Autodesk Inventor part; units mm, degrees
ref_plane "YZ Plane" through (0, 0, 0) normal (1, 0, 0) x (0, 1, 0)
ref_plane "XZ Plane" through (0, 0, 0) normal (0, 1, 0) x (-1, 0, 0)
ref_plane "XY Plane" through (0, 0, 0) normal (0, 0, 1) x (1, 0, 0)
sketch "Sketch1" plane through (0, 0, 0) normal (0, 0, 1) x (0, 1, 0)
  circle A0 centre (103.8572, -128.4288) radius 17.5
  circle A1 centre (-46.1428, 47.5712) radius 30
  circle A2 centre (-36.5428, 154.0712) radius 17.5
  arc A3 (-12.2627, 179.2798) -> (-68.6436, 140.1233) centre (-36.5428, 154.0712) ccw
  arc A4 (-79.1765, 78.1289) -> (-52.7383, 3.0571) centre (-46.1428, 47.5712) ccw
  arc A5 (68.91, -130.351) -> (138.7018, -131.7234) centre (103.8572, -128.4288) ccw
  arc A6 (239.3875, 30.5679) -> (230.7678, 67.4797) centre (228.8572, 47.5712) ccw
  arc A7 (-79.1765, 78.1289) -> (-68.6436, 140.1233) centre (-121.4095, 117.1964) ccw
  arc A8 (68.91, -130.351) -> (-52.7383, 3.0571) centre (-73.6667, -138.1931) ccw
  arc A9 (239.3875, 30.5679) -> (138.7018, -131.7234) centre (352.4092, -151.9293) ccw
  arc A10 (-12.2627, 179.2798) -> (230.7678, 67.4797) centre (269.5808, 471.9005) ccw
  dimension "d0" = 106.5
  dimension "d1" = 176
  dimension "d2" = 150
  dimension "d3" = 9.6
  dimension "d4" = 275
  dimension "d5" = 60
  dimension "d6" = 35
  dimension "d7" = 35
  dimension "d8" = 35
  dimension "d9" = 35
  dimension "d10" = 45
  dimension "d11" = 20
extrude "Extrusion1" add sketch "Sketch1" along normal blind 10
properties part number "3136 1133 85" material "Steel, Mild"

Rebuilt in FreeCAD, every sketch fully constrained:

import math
import FreeCAD as App
import Part
import Sketcher
Q = App.Units.Quantity

doc = App.newDocument("Part")
body = doc.addObject("PartDesign::Body", "Body")

# Sketch on XY plane
sketch1 = body.newObject("Sketcher::SketchObject", "Sketch")
sketch1.AttachmentSupport = (doc.getObject("XY_Plane"), [""])
sketch1.MapMode = "FlatFace"
sketch1.addGeometry(Part.ArcOfCircle(Part.Circle(App.Vector(-471.9005, 269.5808, 0), App.Vector(0, 0, 1), 406.279008), math.radians(-43.925232), math.radians(-5.481991)), False)
sketch1.addGeometry(Part.ArcOfCircle(Part.Circle(App.Vector(-154.0712, -36.5428, 0), App.Vector(0, 0, 1), 34.999954), math.radians(136.074849), math.radians(293.4851)), False)
sketch1.addGeometry(Part.ArcOfCircle(Part.Circle(App.Vector(-117.1964, -121.4095, 0), App.Vector(0, 0, 1), 57.531694), math.radians(47.229731), math.radians(113.485053)), False)
sketch1.addGeometry(Part.ArcOfCircle(Part.Circle(App.Vector(-47.5712, -46.1428, 0), App.Vector(0, 0, 1), 44.999982), math.radians(-132.770253), math.radians(-8.428)), False)
sketch1.addGeometry(Part.ArcOfCircle(Part.Circle(App.Vector(138.1931, -73.6667, 0), App.Vector(0, 0, 1), 142.792205), math.radians(93.148249), math.radians(171.572061)), False)
sketch1.addGeometry(Part.ArcOfCircle(Part.Circle(App.Vector(128.4288, 103.8572, 0), App.Vector(0, 0, 1), 35.000023), math.radians(-86.851734), math.radians(84.598671)), False)
sketch1.addGeometry(Part.ArcOfCircle(Part.Circle(App.Vector(151.9293, 352.4092, 0), App.Vector(0, 0, 1), 214.660506), math.radians(-148.229798), math.radians(-95.401223)), False)
sketch1.addGeometry(Part.ArcOfCircle(Part.Circle(App.Vector(-47.5712, 228.8572, 0), App.Vector(0, 0, 1), 19.999986), math.radians(31.770314), math.radians(174.518166)), False)
sketch1.addGeometry(Part.Circle(App.Vector(128.4288, 103.8572, 0), App.Vector(0, 0, 1), 17.5), False)
sketch1.addGeometry(Part.Circle(App.Vector(-47.5712, -46.1428, 0), App.Vector(0, 0, 1), 30), False)
sketch1.addGeometry(Part.Circle(App.Vector(-154.0712, -36.5428, 0), App.Vector(0, 0, 1), 17.5), False)
sketch1.addConstraint(Sketcher.Constraint("Tangent", 0, 1, 1, 1))
sketch1.addConstraint(Sketcher.Constraint("Tangent", 1, 2, 2, 2))
sketch1.addConstraint(Sketcher.Constraint("Tangent", 2, 1, 3, 1))
sketch1.addConstraint(Sketcher.Constraint("Tangent", 3, 2, 4, 2))
sketch1.addConstraint(Sketcher.Constraint("Tangent", 4, 1, 5, 1))
sketch1.addConstraint(Sketcher.Constraint("Tangent", 5, 2, 6, 2))
sketch1.addConstraint(Sketcher.Constraint("Tangent", 6, 1, 7, 1))
sketch1.addConstraint(Sketcher.Constraint("Tangent", 7, 2, 0, 2))
sketch1.addConstraint(Sketcher.Constraint("Coincident", 8, 3, 5, 3))
sketch1.addConstraint(Sketcher.Constraint("Coincident", 9, 3, 3, 3))
sketch1.addConstraint(Sketcher.Constraint("Coincident", 10, 3, 1, 3))
sketch1.addConstraint(Sketcher.Constraint("Equal", 1, 5))
sketch1.addConstraint(Sketcher.Constraint("Equal", 8, 10))
sketch1.addConstraint(Sketcher.Constraint("Vertical", 3, 3, 7, 3))
sketch1.addConstraint(Sketcher.Constraint("Diameter", 8, Q("35 mm")))
sketch1.addConstraint(Sketcher.Constraint("Diameter", 9, Q("60 mm")))
sketch1.addConstraint(Sketcher.Constraint("Radius", 1, Q("35 mm")))
sketch1.addConstraint(Sketcher.Constraint("Radius", 3, Q("45 mm")))
sketch1.addConstraint(Sketcher.Constraint("Radius", 7, Q("20 mm")))
sketch1.addConstraint(Sketcher.Constraint("DistanceX", 3, 3, 5, 3, Q("176 mm")))
sketch1.addConstraint(Sketcher.Constraint("DistanceY", 3, 3, 5, 3, Q("150 mm")))
sketch1.addConstraint(Sketcher.Constraint("DistanceY", 3, 3, 7, 3, Q("275 mm")))
sketch1.addConstraint(Sketcher.Constraint("DistanceX", 1, 3, 3, 3, Q("106.5 mm")))
sketch1.addConstraint(Sketcher.Constraint("DistanceY", 3, 3, 1, 3, Q("9.6 mm")))
sketch1.addConstraint(Sketcher.Constraint("Radius", 0, Q("406.279 mm")))
sketch1.addConstraint(Sketcher.Constraint("Radius", 2, Q("57.5317 mm")))
sketch1.addConstraint(Sketcher.Constraint("Radius", 4, Q("142.7922 mm")))
sketch1.addConstraint(Sketcher.Constraint("Radius", 6, Q("214.6605 mm")))
sketch1.addConstraint(Sketcher.Constraint("DistanceY", -1, 1, 4, 1, Q("68.91 mm")))
sketch1.addConstraint(Sketcher.Constraint("DistanceX", -1, 1, 4, 3, Q("138.193 mm")))
pad1 = body.newObject("PartDesign::Pad", "Pad")
pad1.Profile = sketch1
pad1.Length = 10

doc.recompute()
